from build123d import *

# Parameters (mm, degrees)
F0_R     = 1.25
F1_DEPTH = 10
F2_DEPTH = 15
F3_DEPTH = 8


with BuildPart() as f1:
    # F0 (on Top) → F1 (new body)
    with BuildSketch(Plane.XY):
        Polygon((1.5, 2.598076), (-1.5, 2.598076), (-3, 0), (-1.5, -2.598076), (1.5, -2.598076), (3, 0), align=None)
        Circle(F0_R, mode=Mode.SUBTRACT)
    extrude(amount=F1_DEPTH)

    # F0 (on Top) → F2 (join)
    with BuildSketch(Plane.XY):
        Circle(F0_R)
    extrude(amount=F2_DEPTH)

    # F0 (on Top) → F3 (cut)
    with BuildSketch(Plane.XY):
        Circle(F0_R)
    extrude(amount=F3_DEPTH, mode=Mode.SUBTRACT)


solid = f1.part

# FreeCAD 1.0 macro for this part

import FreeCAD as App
import Part
import Sketcher
Q = App.Units.Quantity


def add_polygon(sketch, points):
    """Adds a closed chain of lines whose ends are joined by coincident constraints."""
    first, n = sketch.GeometryCount, len(points)
    for a, b in zip(points, points[1:] + points[:1]):
        sketch.addGeometry(Part.LineSegment(App.Vector(*a, 0), App.Vector(*b, 0)), False)
    for i in range(n):
        sketch.addConstraint(Sketcher.Constraint("Coincident", first + i, 2, first + (i + 1) % n, 1))

doc = App.newDocument("Part")
body = doc.addObject("PartDesign::Body", "Body")

sketch1 = doc.addObject("Sketcher::SketchObject", "Sketch")
body.addObject(sketch1)
sketch1.AttachmentSupport = (doc.XY_Plane, [""])
sketch1.MapMode = "FlatFace"
add_polygon(sketch1, [(1.5, 2.6), (-1.5, 2.6), (-3, 0), (-1.5, -2.6), (1.5, -2.6), (3, 0)])
sketch1.addGeometry(Part.Circle(App.Vector(0, 0, 0), App.Vector(0, 0, 1), 1.2), False)
sketch1.addConstraint([
    Sketcher.Constraint("Horizontal", 0),
    Sketcher.Constraint("Horizontal", 3),
    Sketcher.Constraint("Coincident", 6, 3, -1, 1),
    Sketcher.Constraint("Symmetric", 0, 2, 3, 2, -1, 1),
    Sketcher.Constraint("Symmetric", 1, 2, 4, 2, -1, 1),
    Sketcher.Constraint("PointOnObject", 1, 2, -1),
    Sketcher.Constraint("Parallel", 2, 5),
    Sketcher.Constraint("Vertical", 0, 2, 2, 2),
    Sketcher.Constraint("Diameter", 6, Q("2.5 mm")),
    Sketcher.Constraint("DistanceX", 0, 2, 0, 1, Q("3 mm")),
    Sketcher.Constraint("Angle", 1, Q("-120.000002 deg")),
    Sketcher.Constraint("Distance", 1, Q("3 mm")),
])
pad1 = doc.addObject("PartDesign::Pad", "Pad")
body.addObject(pad1)
pad1.Profile = sketch1
pad1.Length = 10

sketch2 = doc.addObject("Sketcher::SketchObject", "Sketch001")
body.addObject(sketch2)
sketch2.AttachmentSupport = (doc.XY_Plane, [""])
sketch2.MapMode = "FlatFace"
sketch2.addGeometry(Part.Circle(App.Vector(0, 0, 0), App.Vector(0, 0, 1), 1.2), False)
sketch2.addConstraint([
    Sketcher.Constraint("Coincident", 0, 3, -1, 1),
    Sketcher.Constraint("Diameter", 0, Q("2.5 mm")),
])
pad2 = doc.addObject("PartDesign::Pad", "Pad001")
body.addObject(pad2)
pad2.Profile = sketch2
pad2.Length = 15

sketch3 = doc.addObject("Sketcher::SketchObject", "Sketch002")
body.addObject(sketch3)
sketch3.AttachmentSupport = (doc.XY_Plane, [""])
sketch3.MapMode = "FlatFace"
sketch3.addGeometry(Part.Circle(App.Vector(0, 0, 0), App.Vector(0, 0, 1), 1.2), False)
sketch3.addConstraint([
    Sketcher.Constraint("Coincident", 0, 3, -1, 1),
    Sketcher.Constraint("Diameter", 0, Q("2.5 mm")),
])
pocket1 = doc.addObject("PartDesign::Pocket", "Pocket")
body.addObject(pocket1)
pocket1.Profile = sketch3
pocket1.Length = 8
pocket1.Reversed = True

doc.recompute()
